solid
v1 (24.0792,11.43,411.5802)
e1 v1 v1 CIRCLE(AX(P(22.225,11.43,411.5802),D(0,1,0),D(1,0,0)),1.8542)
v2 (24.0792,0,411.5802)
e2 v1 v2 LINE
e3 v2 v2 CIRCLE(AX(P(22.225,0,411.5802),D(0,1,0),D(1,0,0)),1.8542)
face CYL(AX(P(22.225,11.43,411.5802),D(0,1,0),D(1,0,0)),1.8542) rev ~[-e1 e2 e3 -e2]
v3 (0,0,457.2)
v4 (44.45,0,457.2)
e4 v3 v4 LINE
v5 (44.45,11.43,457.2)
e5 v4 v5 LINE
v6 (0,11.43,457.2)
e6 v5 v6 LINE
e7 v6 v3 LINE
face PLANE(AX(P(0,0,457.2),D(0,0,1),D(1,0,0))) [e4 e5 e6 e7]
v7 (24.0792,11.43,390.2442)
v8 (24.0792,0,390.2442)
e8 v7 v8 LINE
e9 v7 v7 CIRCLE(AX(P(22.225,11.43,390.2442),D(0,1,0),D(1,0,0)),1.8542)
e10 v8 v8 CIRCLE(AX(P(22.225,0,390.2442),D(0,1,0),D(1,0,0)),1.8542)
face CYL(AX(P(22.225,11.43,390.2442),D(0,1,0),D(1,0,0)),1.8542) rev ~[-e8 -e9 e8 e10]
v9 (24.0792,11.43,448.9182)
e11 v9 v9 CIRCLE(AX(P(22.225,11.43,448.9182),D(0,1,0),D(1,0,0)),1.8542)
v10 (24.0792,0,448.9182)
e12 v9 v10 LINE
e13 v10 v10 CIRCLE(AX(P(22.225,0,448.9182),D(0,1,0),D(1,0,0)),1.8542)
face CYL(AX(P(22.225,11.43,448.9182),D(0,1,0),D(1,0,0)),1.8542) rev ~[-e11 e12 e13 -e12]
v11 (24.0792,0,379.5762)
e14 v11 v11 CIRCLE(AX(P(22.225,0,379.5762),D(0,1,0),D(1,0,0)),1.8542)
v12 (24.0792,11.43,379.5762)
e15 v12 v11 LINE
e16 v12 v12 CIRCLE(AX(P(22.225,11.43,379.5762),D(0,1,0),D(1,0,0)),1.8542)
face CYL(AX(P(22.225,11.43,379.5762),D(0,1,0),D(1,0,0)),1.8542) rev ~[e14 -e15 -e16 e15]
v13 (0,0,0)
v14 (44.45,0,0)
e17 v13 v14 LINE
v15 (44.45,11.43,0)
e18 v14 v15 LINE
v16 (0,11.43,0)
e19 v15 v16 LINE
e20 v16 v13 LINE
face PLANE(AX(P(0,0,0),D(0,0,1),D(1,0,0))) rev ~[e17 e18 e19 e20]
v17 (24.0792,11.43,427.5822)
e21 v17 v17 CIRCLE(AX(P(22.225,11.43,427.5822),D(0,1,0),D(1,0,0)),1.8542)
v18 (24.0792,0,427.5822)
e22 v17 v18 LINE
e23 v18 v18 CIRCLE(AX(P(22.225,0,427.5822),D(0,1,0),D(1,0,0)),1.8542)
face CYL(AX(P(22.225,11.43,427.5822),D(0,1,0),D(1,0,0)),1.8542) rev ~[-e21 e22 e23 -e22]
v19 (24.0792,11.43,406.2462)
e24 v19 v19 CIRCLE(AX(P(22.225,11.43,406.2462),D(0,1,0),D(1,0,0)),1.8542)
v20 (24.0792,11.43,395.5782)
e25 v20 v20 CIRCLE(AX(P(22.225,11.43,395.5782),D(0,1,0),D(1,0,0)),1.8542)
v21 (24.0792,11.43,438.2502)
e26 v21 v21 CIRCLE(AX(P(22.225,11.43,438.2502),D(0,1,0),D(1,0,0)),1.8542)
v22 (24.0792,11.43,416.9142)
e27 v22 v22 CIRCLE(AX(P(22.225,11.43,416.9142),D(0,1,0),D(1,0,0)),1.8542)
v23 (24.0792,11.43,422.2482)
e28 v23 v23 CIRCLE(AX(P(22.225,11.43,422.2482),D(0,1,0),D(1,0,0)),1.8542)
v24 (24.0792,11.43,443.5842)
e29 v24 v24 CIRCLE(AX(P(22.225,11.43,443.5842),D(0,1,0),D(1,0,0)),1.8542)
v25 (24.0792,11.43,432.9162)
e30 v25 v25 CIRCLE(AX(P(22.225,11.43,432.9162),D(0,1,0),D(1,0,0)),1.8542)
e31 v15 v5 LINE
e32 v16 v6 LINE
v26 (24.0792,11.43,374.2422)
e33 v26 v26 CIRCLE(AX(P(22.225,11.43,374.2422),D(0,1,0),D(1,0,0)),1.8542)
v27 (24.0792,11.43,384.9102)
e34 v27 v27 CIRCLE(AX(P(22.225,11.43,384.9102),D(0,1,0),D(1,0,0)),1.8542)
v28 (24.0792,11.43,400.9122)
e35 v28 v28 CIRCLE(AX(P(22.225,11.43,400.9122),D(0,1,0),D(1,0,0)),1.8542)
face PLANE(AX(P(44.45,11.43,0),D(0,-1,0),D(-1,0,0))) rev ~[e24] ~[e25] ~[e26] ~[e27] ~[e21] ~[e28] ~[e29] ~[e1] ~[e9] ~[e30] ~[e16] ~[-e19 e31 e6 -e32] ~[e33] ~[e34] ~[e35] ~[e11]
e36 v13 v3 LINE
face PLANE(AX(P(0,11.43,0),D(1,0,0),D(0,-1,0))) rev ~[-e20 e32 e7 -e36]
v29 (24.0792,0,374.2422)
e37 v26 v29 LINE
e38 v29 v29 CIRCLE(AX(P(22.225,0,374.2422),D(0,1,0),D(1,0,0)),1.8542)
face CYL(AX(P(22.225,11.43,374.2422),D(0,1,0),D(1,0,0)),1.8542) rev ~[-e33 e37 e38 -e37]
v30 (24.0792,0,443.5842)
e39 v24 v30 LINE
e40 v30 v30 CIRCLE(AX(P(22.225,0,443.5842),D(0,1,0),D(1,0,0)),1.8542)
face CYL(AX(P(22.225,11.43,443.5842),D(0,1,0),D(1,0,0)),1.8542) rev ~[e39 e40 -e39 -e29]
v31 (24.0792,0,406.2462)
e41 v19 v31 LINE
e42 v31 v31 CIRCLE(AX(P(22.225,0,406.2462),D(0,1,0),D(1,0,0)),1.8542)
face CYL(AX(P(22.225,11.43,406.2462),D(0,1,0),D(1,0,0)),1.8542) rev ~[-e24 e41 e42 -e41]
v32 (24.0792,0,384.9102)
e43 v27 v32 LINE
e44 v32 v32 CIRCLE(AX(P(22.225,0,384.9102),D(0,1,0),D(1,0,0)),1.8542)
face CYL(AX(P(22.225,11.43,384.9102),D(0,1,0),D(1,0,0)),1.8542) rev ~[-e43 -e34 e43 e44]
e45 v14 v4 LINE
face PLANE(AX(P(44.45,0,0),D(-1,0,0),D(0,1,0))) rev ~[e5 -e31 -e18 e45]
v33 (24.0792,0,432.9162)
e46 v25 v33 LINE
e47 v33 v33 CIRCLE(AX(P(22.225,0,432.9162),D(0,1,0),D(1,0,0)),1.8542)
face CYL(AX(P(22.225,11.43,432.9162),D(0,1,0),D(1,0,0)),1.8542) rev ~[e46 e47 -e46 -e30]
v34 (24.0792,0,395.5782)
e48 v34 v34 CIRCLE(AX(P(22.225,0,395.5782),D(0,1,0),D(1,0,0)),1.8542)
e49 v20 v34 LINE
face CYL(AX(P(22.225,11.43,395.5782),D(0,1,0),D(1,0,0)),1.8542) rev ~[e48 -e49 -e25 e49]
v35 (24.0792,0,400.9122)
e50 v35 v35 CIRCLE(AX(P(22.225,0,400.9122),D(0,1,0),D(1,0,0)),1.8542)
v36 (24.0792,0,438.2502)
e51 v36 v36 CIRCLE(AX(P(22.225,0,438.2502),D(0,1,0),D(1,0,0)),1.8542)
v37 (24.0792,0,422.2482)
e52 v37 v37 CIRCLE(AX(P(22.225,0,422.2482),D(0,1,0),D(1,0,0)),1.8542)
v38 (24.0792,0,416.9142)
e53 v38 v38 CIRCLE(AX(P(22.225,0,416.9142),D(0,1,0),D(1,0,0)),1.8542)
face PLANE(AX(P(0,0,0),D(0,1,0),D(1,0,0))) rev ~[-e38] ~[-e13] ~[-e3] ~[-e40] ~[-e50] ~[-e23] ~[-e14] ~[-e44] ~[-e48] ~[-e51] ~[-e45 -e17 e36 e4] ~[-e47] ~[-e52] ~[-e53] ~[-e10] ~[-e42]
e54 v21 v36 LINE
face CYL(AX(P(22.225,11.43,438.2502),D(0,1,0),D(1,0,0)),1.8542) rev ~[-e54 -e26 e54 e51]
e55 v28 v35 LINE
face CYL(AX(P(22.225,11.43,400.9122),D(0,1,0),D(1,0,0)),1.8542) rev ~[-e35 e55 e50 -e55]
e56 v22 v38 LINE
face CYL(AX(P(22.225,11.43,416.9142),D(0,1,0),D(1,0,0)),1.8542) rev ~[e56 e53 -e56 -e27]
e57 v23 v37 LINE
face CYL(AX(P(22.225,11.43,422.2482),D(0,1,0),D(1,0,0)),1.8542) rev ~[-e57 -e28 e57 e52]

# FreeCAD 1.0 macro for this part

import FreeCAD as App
import Part
import Sketcher

V = App.Vector
Q = App.Units.Quantity

doc = App.newDocument("Part")
body = doc.addObject("PartDesign::Body", "Body")

sketch1 = body.newObject("Sketcher::SketchObject", "Sketch")
sketch1.AttachmentSupport = (doc.getObject("XY_Plane"), [""])
sketch1.MapMode = "FlatFace"
sketch1.addGeometry([
    Part.LineSegment(V(0, 11.43, 0), V(0, 0, 0)),
    Part.LineSegment(V(0, 0, 0), V(44.45, 0, 0)),
    Part.LineSegment(V(44.45, 0, 0), V(44.45, 11.43, 0)),
    Part.LineSegment(V(44.45, 11.43, 0), V(0, 11.43, 0)),
], False)
sketch1.addConstraint([
    Sketcher.Constraint("Coincident", 0, 2, 1, 1),
    Sketcher.Constraint("Coincident", 1, 2, 2, 1),
    Sketcher.Constraint("Coincident", 2, 2, 3, 1),
    Sketcher.Constraint("Coincident", 3, 2, 0, 1),
    Sketcher.Constraint("Vertical", 0),
    Sketcher.Constraint("Horizontal", 1),
    Sketcher.Constraint("Vertical", 2),
    Sketcher.Constraint("Horizontal", 3),
    Sketcher.Constraint("Coincident", 0, 2, -1, 1),
    Sketcher.Constraint("DistanceX", 1, 1, 1, 2, Q("1.75 in")),
    Sketcher.Constraint("DistanceY", 0, 2, 0, 1, Q("0.45 in")),
])
pad1 = body.newObject("PartDesign::Pad", "Pad")
pad1.Profile = sketch1
pad1.Length = Q("18 in")

sketch2 = body.newObject("Sketcher::SketchObject", "Sketch001")
sketch2.AttachmentSupport = (doc.getObject("XZ_Plane"), [""])
sketch2.MapMode = "FlatFace"
sketch2.AttachmentOffset = App.Placement(V(0, 0, -0.45 * 25.4), App.Rotation())
sketch2.addGeometry(Part.Circle(V(22.225, 448.9182, 0), V(0, 0, 1), 1.8542), False)
sketch2.addConstraint([
    Sketcher.Constraint("Diameter", 0, Q("0.146 in")),
    Sketcher.Constraint("DistanceX", -1, 1, 0, 3, Q("0.875 in")),
    Sketcher.Constraint("DistanceY", -1, 1, 0, 3, Q("448.9182 mm")),
])
pocket1 = body.newObject("PartDesign::Pocket", "Pocket")
pocket1.Profile = sketch2
pocket1.Length = Q("1 in")
pocket1.Reversed = True
doc.recompute()

linearpattern = body.newObject("PartDesign::LinearPattern", "LinearPattern")
linearpattern.Originals = [pocket1]
linearpattern.Direction = (doc.getObject("Z_Axis"), [""])
linearpattern.Mode = "offset"
linearpattern.Offset = Q("0.21 in")
linearpattern.Occurrences = 15
linearpattern.Reversed = True
body.Tip = linearpattern

doc.recompute()
